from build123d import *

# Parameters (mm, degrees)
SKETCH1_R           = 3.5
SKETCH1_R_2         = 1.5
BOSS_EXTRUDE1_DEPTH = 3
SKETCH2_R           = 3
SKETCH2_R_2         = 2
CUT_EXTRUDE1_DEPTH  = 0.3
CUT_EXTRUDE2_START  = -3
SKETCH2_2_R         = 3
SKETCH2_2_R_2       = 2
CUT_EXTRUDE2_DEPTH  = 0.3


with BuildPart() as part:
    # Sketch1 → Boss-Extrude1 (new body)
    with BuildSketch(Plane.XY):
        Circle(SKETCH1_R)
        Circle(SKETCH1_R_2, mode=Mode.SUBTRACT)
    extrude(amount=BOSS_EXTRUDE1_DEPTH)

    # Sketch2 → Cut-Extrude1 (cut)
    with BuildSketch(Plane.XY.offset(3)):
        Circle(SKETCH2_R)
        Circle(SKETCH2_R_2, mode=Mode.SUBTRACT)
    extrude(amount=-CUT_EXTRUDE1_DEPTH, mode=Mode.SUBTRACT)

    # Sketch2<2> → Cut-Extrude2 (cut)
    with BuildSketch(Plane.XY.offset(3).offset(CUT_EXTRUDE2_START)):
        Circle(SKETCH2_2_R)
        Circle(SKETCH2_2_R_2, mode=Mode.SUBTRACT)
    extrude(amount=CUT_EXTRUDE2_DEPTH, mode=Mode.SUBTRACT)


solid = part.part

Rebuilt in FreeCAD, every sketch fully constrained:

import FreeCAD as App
import Part
import Sketcher

V = App.Vector
Q = App.Units.Quantity

doc = App.newDocument("Part")
body = doc.addObject("PartDesign::Body", "Body")

# Sketch on XY plane
sketch1 = doc.addObject("Sketcher::SketchObject", "Sketch")
body.addObject(sketch1)
sketch1.AttachmentSupport = (doc.XY_Plane, [""])
sketch1.MapMode = "FlatFace"
sketch1.addGeometry(Part.Circle(V(0, 0, 0), V(0, 0, 1), 3.5), False)
sketch1.addGeometry(Part.Circle(V(0, 0, 0), V(0, 0, 1), 1.5), False)
sketch1.addConstraint(Sketcher.Constraint("Coincident", 0, 3, -1, 1))
sketch1.addConstraint(Sketcher.Constraint("Coincident", 1, 3, -1, 1))
sketch1.addConstraint(Sketcher.Constraint("Diameter", 0, Q("7 mm")))
sketch1.addConstraint(Sketcher.Constraint("Diameter", 1, Q("3 mm")))
pad1 = doc.addObject("PartDesign::Pad", "Pad")
body.addObject(pad1)
pad1.Profile = sketch1
pad1.Length = 3

# Sketch on XY plane
sketch2 = doc.addObject("Sketcher::SketchObject", "Sketch001")
body.addObject(sketch2)
sketch2.AttachmentSupport = (doc.XY_Plane, [""])
sketch2.MapMode = "FlatFace"
sketch2.AttachmentOffset = App.Placement(V(0, 0, 3), App.Rotation())
sketch2.addGeometry(Part.Circle(V(0, 0, 0), V(0, 0, 1), 3), False)
sketch2.addGeometry(Part.Circle(V(0, 0, 0), V(0, 0, 1), 2), False)
sketch2.addConstraint(Sketcher.Constraint("Coincident", 0, 3, -1, 1))
sketch2.addConstraint(Sketcher.Constraint("Coincident", 1, 3, -1, 1))
sketch2.addConstraint(Sketcher.Constraint("Diameter", 0, Q("6 mm")))
sketch2.addConstraint(Sketcher.Constraint("Diameter", 1, Q("4 mm")))
pocket1 = doc.addObject("PartDesign::Pocket", "Pocket")
body.addObject(pocket1)
pocket1.Profile = sketch2
pocket1.Length = 0.3

# Sketch on XY plane
sketch3 = doc.addObject("Sketcher::SketchObject", "Sketch002")
body.addObject(sketch3)
sketch3.AttachmentSupport = (doc.XY_Plane, [""])
sketch3.MapMode = "FlatFace"
sketch3.addGeometry(Part.Circle(V(0, 0, 0), V(0, 0, 1), 3), False)
sketch3.addGeometry(Part.Circle(V(0, 0, 0), V(0, 0, 1), 2), False)
sketch3.addConstraint(Sketcher.Constraint("Coincident", 0, 3, -1, 1))
sketch3.addConstraint(Sketcher.Constraint("Coincident", 1, 3, -1, 1))
sketch3.addConstraint(Sketcher.Constraint("Diameter", 0, Q("6 mm")))
sketch3.addConstraint(Sketcher.Constraint("Diameter", 1, Q("4 mm")))
pocket2 = doc.addObject("PartDesign::Pocket", "Pocket001")
body.addObject(pocket2)
pocket2.Profile = sketch3
pocket2.Length = 0.3
pocket2.Reversed = True

doc.recompute()
